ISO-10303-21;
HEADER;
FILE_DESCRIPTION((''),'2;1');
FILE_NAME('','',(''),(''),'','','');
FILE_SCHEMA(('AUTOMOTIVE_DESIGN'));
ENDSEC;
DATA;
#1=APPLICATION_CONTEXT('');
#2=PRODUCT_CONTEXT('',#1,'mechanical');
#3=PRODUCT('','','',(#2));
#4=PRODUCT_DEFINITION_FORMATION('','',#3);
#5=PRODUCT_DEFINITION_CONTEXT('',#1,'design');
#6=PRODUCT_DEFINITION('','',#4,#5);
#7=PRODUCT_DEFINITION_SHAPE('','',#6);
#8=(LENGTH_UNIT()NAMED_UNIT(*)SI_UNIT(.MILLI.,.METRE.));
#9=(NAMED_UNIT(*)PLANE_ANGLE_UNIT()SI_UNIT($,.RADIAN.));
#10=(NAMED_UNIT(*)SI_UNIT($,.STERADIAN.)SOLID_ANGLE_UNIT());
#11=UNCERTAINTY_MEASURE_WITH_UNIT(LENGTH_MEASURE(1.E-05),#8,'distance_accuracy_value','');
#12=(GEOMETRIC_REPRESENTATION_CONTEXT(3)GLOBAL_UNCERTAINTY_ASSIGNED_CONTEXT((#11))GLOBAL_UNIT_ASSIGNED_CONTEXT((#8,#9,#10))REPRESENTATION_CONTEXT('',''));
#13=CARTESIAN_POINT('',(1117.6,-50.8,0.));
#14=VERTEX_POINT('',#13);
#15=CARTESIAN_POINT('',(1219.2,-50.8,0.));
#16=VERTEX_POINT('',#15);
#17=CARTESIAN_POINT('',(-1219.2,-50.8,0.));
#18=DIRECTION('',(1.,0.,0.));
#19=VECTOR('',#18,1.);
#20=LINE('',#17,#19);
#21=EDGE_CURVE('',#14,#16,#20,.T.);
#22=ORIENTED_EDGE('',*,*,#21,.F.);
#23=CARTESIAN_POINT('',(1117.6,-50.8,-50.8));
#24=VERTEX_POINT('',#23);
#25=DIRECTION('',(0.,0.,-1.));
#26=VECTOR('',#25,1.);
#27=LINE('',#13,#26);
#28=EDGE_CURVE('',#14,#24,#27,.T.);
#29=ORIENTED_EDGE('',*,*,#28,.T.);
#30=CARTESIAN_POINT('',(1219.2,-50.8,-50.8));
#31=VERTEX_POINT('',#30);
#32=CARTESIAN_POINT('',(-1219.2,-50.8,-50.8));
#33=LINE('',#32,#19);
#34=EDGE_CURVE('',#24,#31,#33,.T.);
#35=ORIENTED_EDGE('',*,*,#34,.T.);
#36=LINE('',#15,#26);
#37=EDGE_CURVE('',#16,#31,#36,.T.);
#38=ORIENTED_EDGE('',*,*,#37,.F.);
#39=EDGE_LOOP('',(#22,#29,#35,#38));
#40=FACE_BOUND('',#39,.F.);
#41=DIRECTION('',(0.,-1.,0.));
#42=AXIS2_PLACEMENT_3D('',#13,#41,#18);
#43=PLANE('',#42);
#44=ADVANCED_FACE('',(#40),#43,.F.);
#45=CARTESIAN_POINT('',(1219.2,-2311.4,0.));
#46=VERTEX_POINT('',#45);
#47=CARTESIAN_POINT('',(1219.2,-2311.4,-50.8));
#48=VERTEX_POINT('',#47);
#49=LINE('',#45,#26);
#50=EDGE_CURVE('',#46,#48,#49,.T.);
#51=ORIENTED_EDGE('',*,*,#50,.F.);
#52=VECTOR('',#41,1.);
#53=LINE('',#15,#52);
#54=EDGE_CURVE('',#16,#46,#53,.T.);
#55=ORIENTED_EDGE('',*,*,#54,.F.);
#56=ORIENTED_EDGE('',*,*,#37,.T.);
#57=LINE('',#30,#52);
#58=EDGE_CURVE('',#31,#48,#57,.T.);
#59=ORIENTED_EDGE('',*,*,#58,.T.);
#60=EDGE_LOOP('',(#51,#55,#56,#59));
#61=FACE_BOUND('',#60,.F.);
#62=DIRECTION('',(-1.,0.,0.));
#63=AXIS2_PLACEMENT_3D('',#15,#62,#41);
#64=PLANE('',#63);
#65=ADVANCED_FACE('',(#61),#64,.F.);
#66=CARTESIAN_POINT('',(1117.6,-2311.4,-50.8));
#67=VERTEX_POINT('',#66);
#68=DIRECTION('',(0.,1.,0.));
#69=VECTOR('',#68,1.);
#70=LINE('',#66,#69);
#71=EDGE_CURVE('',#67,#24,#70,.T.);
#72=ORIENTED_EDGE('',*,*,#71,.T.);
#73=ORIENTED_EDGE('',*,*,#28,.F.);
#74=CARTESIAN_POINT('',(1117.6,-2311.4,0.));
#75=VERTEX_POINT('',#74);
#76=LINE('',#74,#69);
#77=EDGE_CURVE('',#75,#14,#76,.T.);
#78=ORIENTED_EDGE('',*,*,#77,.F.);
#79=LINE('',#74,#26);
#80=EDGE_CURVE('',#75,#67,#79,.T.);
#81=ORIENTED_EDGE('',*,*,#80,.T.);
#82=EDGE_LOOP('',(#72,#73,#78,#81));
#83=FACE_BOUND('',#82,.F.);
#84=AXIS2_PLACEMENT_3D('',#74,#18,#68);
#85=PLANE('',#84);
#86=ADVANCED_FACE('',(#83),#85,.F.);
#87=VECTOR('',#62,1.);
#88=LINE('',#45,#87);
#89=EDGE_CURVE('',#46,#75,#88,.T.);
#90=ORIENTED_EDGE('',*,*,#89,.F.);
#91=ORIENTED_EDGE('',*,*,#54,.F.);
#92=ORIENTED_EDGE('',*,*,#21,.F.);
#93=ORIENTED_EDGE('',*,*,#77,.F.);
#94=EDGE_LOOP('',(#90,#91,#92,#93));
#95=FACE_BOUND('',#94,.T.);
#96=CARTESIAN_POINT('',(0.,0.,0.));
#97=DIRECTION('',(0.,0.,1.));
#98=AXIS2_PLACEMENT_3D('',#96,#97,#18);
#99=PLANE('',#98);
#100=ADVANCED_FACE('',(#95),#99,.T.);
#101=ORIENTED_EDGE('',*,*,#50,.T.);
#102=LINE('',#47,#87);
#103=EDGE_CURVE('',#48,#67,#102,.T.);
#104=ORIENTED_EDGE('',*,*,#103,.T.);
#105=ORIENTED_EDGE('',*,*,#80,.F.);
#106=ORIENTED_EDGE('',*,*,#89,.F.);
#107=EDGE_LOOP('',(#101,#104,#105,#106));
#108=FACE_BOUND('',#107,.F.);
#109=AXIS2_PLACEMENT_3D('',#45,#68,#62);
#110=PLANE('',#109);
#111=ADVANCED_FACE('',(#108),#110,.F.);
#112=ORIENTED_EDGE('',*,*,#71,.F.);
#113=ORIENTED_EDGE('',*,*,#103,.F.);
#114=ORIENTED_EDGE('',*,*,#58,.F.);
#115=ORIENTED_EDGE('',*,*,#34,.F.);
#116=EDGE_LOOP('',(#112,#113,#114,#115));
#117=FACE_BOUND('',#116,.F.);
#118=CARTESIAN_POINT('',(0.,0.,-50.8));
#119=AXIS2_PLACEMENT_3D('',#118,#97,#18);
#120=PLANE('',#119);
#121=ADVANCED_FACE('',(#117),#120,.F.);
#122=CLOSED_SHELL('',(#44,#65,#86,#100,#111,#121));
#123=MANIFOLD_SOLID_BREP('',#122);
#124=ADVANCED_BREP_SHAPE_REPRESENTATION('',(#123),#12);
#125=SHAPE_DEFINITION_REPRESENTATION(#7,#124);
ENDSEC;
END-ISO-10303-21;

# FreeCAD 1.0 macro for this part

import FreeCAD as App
import Part
import Sketcher
Q = App.Units.Quantity

doc = App.newDocument("Part")
body = doc.addObject("PartDesign::Body", "Body")

sketch1 = doc.addObject("Sketcher::SketchObject", "Sketch")
body.addObject(sketch1)
sketch1.AttachmentSupport = (doc.XY_Plane, [""])
sketch1.MapMode = "FlatFace"
sketch1.addGeometry(Part.LineSegment(App.Vector(1117.6, -50.8, 0), App.Vector(1117.6, -2311.4, 0)), False)
sketch1.addGeometry(Part.LineSegment(App.Vector(1117.6, -2311.4, 0), App.Vector(1219.2, -2311.4, 0)), False)
sketch1.addGeometry(Part.LineSegment(App.Vector(1219.2, -2311.4, 0), App.Vector(1219.2, -50.8, 0)), False)
sketch1.addGeometry(Part.LineSegment(App.Vector(1219.2, -50.8, 0), App.Vector(1117.6, -50.8, 0)), False)
sketch1.addConstraint(Sketcher.Constraint("Coincident", 0, 2, 1, 1))
sketch1.addConstraint(Sketcher.Constraint("Coincident", 1, 2, 2, 1))
sketch1.addConstraint(Sketcher.Constraint("Coincident", 2, 2, 3, 1))
sketch1.addConstraint(Sketcher.Constraint("Coincident", 3, 2, 0, 1))
sketch1.addConstraint(Sketcher.Constraint("Vertical", 0))
sketch1.addConstraint(Sketcher.Constraint("Horizontal", 1))
sketch1.addConstraint(Sketcher.Constraint("Vertical", 2))
sketch1.addConstraint(Sketcher.Constraint("Horizontal", 3))
sketch1.addConstraint(Sketcher.Constraint("DistanceX", 1, 1, 1, 2, Q("4 in")))
sketch1.addConstraint(Sketcher.Constraint("DistanceY", 0, 2, 0, 1, Q("89 in")))
sketch1.addConstraint(Sketcher.Constraint("DistanceX", -1, 1, 0, 2, Q("44 in")))
sketch1.addConstraint(Sketcher.Constraint("DistanceY", 0, 2, -1, 1, Q("91 in")))
pad1 = doc.addObject("PartDesign::Pad", "Pad")
body.addObject(pad1)
pad1.Profile = sketch1
pad1.Length = Q("2 in")
pad1.Reversed = True

doc.recompute()
